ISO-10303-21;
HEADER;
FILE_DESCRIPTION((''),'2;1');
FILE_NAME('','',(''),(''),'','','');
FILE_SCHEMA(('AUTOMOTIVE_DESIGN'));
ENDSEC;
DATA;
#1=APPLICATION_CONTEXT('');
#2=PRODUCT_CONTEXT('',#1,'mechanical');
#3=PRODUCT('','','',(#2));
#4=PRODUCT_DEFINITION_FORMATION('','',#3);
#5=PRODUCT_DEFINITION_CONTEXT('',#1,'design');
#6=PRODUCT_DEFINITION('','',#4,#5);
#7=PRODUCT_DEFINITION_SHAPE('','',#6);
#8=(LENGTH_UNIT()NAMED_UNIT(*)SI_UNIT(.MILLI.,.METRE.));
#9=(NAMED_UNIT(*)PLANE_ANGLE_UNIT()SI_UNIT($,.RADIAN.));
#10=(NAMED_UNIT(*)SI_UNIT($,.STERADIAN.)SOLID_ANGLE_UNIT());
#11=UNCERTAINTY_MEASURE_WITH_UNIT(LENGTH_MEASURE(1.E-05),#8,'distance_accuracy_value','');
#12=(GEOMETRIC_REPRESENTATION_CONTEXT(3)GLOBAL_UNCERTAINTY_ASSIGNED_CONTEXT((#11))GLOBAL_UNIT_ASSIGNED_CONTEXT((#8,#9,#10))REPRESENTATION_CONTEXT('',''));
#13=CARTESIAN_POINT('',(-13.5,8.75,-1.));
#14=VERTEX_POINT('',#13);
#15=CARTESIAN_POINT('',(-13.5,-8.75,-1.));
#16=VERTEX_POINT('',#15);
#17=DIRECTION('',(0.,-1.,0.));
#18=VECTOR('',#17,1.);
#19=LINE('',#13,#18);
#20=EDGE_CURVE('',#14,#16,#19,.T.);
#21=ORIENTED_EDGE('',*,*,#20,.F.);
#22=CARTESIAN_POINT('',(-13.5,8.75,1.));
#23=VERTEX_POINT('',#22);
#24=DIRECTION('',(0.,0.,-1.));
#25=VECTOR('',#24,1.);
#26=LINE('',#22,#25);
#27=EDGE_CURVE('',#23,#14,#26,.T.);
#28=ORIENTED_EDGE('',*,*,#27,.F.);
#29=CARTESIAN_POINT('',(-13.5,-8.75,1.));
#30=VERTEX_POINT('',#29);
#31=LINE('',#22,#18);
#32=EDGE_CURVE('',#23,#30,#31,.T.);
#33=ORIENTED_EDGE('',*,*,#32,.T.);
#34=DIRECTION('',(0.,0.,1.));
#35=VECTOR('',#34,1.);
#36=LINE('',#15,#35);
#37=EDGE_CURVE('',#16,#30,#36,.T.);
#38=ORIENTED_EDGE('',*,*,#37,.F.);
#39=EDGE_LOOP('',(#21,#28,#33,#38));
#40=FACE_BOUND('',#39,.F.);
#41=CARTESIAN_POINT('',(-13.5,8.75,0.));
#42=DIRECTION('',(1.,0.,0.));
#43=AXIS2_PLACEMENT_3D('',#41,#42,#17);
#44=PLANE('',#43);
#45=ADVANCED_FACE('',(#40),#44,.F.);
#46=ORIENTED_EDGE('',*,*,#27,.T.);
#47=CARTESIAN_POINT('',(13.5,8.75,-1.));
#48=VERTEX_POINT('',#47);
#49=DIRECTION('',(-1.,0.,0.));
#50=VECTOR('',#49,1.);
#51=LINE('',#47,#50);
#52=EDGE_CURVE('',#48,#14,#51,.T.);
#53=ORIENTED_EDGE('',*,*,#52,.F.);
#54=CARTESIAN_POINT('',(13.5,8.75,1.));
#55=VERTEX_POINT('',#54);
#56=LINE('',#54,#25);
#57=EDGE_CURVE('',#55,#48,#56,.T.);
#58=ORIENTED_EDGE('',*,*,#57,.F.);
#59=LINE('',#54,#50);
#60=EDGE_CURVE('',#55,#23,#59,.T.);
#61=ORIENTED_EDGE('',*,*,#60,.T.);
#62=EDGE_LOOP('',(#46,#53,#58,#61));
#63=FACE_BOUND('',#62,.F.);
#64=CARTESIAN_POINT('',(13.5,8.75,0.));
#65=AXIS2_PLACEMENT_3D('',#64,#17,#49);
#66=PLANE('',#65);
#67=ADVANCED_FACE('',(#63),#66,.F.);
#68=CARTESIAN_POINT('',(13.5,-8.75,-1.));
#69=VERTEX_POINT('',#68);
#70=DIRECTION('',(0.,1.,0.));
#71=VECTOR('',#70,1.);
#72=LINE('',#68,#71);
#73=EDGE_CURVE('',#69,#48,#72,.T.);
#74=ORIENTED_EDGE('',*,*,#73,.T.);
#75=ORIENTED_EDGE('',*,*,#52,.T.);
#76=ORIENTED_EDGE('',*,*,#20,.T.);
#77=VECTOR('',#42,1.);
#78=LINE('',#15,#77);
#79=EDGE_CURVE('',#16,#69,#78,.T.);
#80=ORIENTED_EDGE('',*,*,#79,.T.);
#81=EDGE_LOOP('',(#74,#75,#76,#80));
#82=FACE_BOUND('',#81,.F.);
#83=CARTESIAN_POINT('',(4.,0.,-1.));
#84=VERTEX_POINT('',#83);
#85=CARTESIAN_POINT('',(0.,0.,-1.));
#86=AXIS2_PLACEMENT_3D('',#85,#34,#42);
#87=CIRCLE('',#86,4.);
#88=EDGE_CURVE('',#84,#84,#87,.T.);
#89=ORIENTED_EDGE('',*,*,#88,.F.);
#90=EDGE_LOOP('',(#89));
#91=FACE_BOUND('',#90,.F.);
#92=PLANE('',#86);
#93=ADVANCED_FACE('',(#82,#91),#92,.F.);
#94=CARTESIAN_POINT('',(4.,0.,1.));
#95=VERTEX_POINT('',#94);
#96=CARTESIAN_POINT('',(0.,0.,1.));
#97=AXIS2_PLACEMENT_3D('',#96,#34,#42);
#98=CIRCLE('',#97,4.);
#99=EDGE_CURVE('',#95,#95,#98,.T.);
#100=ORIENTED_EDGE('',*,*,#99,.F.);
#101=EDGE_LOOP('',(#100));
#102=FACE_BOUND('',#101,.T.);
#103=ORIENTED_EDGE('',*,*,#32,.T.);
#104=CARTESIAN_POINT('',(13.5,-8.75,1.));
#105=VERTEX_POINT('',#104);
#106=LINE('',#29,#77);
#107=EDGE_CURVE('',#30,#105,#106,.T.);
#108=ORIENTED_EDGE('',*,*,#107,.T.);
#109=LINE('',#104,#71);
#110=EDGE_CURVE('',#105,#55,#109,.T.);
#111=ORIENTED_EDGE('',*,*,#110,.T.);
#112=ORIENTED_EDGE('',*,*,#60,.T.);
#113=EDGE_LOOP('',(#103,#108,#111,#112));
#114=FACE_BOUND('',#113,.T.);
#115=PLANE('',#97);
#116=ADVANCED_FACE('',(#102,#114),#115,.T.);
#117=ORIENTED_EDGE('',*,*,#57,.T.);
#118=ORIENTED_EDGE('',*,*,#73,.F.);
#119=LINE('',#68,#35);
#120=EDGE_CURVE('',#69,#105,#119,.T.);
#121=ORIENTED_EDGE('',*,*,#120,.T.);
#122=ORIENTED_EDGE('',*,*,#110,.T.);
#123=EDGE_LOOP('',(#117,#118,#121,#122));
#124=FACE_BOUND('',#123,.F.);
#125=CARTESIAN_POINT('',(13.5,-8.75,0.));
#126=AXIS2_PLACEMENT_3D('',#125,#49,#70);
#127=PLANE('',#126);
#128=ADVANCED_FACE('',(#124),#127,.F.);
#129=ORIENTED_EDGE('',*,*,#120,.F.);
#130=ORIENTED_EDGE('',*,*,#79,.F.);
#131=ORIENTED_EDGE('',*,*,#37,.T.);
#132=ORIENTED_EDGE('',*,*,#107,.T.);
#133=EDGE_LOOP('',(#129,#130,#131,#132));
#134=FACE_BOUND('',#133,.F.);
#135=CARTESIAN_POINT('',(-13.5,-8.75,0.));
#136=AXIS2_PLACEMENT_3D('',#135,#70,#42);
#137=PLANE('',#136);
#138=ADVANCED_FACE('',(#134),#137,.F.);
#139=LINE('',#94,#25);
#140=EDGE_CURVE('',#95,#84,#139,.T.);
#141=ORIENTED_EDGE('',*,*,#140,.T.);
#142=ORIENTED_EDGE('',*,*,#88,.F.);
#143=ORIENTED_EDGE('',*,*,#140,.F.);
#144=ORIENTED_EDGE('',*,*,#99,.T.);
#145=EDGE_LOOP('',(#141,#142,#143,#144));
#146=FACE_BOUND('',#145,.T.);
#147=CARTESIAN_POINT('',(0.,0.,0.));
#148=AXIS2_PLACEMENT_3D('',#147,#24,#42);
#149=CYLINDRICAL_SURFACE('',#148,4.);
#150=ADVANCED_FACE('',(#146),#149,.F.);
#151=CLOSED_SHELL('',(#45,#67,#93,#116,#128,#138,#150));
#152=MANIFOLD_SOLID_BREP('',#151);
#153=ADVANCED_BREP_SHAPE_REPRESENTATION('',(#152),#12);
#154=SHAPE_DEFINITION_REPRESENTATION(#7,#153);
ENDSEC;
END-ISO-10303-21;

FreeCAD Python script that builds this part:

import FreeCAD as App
import Part
import Sketcher

V = App.Vector

doc = App.newDocument("Part")
body = doc.addObject("PartDesign::Body", "Body")

sketch1 = doc.addObject("Sketcher::SketchObject", "Sketch")
body.addObject(sketch1)
sketch1.AttachmentSupport = (doc.XY_Plane, [""])
sketch1.MapMode = "FlatFace"
sketch1.addGeometry(Part.LineSegment(V(-13.5, 8.8, 0), V(-13.5, -8.8, 0)), False)
sketch1.addGeometry(Part.LineSegment(V(-13.5, -8.8, 0), V(13.5, -8.8, 0)), False)
sketch1.addGeometry(Part.LineSegment(V(13.5, -8.8, 0), V(13.5, 8.8, 0)), False)
sketch1.addGeometry(Part.LineSegment(V(13.5, 8.8, 0), V(-13.5, 8.8, 0)), False)
sketch1.addGeometry(Part.Circle(V(0, 0, 0), V(0, 0, 1), 4), False)
sketch1.addConstraint(Sketcher.Constraint("Coincident", 0, 2, 1, 1))
sketch1.addConstraint(Sketcher.Constraint("Coincident", 1, 2, 2, 1))
sketch1.addConstraint(Sketcher.Constraint("Coincident", 2, 2, 3, 1))
sketch1.addConstraint(Sketcher.Constraint("Coincident", 3, 2, 0, 1))
sketch1.addConstraint(Sketcher.Constraint("Vertical", 0))
sketch1.addConstraint(Sketcher.Constraint("Horizontal", 1))
sketch1.addConstraint(Sketcher.Constraint("Vertical", 2))
sketch1.addConstraint(Sketcher.Constraint("Horizontal", 3))
sketch1.addConstraint(Sketcher.Constraint("Coincident", 4, 3, -1, 1))
sketch1.addConstraint(Sketcher.Constraint("Symmetric", 0, 2, 2, 2, -1, 1))
sketch1.addConstraint(Sketcher.Constraint("Diameter", 4, 8.0))
sketch1.addConstraint(Sketcher.Constraint("DistanceX", 1, 1, 1, 2, 27.0))
sketch1.addConstraint(Sketcher.Constraint("DistanceY", 0, 2, 0, 1, 17.5))
pad1 = doc.addObject("PartDesign::Pad", "Pad")
body.addObject(pad1)
pad1.Profile = sketch1
pad1.Length = 2
pad1.Midplane = True

doc.recompute()
